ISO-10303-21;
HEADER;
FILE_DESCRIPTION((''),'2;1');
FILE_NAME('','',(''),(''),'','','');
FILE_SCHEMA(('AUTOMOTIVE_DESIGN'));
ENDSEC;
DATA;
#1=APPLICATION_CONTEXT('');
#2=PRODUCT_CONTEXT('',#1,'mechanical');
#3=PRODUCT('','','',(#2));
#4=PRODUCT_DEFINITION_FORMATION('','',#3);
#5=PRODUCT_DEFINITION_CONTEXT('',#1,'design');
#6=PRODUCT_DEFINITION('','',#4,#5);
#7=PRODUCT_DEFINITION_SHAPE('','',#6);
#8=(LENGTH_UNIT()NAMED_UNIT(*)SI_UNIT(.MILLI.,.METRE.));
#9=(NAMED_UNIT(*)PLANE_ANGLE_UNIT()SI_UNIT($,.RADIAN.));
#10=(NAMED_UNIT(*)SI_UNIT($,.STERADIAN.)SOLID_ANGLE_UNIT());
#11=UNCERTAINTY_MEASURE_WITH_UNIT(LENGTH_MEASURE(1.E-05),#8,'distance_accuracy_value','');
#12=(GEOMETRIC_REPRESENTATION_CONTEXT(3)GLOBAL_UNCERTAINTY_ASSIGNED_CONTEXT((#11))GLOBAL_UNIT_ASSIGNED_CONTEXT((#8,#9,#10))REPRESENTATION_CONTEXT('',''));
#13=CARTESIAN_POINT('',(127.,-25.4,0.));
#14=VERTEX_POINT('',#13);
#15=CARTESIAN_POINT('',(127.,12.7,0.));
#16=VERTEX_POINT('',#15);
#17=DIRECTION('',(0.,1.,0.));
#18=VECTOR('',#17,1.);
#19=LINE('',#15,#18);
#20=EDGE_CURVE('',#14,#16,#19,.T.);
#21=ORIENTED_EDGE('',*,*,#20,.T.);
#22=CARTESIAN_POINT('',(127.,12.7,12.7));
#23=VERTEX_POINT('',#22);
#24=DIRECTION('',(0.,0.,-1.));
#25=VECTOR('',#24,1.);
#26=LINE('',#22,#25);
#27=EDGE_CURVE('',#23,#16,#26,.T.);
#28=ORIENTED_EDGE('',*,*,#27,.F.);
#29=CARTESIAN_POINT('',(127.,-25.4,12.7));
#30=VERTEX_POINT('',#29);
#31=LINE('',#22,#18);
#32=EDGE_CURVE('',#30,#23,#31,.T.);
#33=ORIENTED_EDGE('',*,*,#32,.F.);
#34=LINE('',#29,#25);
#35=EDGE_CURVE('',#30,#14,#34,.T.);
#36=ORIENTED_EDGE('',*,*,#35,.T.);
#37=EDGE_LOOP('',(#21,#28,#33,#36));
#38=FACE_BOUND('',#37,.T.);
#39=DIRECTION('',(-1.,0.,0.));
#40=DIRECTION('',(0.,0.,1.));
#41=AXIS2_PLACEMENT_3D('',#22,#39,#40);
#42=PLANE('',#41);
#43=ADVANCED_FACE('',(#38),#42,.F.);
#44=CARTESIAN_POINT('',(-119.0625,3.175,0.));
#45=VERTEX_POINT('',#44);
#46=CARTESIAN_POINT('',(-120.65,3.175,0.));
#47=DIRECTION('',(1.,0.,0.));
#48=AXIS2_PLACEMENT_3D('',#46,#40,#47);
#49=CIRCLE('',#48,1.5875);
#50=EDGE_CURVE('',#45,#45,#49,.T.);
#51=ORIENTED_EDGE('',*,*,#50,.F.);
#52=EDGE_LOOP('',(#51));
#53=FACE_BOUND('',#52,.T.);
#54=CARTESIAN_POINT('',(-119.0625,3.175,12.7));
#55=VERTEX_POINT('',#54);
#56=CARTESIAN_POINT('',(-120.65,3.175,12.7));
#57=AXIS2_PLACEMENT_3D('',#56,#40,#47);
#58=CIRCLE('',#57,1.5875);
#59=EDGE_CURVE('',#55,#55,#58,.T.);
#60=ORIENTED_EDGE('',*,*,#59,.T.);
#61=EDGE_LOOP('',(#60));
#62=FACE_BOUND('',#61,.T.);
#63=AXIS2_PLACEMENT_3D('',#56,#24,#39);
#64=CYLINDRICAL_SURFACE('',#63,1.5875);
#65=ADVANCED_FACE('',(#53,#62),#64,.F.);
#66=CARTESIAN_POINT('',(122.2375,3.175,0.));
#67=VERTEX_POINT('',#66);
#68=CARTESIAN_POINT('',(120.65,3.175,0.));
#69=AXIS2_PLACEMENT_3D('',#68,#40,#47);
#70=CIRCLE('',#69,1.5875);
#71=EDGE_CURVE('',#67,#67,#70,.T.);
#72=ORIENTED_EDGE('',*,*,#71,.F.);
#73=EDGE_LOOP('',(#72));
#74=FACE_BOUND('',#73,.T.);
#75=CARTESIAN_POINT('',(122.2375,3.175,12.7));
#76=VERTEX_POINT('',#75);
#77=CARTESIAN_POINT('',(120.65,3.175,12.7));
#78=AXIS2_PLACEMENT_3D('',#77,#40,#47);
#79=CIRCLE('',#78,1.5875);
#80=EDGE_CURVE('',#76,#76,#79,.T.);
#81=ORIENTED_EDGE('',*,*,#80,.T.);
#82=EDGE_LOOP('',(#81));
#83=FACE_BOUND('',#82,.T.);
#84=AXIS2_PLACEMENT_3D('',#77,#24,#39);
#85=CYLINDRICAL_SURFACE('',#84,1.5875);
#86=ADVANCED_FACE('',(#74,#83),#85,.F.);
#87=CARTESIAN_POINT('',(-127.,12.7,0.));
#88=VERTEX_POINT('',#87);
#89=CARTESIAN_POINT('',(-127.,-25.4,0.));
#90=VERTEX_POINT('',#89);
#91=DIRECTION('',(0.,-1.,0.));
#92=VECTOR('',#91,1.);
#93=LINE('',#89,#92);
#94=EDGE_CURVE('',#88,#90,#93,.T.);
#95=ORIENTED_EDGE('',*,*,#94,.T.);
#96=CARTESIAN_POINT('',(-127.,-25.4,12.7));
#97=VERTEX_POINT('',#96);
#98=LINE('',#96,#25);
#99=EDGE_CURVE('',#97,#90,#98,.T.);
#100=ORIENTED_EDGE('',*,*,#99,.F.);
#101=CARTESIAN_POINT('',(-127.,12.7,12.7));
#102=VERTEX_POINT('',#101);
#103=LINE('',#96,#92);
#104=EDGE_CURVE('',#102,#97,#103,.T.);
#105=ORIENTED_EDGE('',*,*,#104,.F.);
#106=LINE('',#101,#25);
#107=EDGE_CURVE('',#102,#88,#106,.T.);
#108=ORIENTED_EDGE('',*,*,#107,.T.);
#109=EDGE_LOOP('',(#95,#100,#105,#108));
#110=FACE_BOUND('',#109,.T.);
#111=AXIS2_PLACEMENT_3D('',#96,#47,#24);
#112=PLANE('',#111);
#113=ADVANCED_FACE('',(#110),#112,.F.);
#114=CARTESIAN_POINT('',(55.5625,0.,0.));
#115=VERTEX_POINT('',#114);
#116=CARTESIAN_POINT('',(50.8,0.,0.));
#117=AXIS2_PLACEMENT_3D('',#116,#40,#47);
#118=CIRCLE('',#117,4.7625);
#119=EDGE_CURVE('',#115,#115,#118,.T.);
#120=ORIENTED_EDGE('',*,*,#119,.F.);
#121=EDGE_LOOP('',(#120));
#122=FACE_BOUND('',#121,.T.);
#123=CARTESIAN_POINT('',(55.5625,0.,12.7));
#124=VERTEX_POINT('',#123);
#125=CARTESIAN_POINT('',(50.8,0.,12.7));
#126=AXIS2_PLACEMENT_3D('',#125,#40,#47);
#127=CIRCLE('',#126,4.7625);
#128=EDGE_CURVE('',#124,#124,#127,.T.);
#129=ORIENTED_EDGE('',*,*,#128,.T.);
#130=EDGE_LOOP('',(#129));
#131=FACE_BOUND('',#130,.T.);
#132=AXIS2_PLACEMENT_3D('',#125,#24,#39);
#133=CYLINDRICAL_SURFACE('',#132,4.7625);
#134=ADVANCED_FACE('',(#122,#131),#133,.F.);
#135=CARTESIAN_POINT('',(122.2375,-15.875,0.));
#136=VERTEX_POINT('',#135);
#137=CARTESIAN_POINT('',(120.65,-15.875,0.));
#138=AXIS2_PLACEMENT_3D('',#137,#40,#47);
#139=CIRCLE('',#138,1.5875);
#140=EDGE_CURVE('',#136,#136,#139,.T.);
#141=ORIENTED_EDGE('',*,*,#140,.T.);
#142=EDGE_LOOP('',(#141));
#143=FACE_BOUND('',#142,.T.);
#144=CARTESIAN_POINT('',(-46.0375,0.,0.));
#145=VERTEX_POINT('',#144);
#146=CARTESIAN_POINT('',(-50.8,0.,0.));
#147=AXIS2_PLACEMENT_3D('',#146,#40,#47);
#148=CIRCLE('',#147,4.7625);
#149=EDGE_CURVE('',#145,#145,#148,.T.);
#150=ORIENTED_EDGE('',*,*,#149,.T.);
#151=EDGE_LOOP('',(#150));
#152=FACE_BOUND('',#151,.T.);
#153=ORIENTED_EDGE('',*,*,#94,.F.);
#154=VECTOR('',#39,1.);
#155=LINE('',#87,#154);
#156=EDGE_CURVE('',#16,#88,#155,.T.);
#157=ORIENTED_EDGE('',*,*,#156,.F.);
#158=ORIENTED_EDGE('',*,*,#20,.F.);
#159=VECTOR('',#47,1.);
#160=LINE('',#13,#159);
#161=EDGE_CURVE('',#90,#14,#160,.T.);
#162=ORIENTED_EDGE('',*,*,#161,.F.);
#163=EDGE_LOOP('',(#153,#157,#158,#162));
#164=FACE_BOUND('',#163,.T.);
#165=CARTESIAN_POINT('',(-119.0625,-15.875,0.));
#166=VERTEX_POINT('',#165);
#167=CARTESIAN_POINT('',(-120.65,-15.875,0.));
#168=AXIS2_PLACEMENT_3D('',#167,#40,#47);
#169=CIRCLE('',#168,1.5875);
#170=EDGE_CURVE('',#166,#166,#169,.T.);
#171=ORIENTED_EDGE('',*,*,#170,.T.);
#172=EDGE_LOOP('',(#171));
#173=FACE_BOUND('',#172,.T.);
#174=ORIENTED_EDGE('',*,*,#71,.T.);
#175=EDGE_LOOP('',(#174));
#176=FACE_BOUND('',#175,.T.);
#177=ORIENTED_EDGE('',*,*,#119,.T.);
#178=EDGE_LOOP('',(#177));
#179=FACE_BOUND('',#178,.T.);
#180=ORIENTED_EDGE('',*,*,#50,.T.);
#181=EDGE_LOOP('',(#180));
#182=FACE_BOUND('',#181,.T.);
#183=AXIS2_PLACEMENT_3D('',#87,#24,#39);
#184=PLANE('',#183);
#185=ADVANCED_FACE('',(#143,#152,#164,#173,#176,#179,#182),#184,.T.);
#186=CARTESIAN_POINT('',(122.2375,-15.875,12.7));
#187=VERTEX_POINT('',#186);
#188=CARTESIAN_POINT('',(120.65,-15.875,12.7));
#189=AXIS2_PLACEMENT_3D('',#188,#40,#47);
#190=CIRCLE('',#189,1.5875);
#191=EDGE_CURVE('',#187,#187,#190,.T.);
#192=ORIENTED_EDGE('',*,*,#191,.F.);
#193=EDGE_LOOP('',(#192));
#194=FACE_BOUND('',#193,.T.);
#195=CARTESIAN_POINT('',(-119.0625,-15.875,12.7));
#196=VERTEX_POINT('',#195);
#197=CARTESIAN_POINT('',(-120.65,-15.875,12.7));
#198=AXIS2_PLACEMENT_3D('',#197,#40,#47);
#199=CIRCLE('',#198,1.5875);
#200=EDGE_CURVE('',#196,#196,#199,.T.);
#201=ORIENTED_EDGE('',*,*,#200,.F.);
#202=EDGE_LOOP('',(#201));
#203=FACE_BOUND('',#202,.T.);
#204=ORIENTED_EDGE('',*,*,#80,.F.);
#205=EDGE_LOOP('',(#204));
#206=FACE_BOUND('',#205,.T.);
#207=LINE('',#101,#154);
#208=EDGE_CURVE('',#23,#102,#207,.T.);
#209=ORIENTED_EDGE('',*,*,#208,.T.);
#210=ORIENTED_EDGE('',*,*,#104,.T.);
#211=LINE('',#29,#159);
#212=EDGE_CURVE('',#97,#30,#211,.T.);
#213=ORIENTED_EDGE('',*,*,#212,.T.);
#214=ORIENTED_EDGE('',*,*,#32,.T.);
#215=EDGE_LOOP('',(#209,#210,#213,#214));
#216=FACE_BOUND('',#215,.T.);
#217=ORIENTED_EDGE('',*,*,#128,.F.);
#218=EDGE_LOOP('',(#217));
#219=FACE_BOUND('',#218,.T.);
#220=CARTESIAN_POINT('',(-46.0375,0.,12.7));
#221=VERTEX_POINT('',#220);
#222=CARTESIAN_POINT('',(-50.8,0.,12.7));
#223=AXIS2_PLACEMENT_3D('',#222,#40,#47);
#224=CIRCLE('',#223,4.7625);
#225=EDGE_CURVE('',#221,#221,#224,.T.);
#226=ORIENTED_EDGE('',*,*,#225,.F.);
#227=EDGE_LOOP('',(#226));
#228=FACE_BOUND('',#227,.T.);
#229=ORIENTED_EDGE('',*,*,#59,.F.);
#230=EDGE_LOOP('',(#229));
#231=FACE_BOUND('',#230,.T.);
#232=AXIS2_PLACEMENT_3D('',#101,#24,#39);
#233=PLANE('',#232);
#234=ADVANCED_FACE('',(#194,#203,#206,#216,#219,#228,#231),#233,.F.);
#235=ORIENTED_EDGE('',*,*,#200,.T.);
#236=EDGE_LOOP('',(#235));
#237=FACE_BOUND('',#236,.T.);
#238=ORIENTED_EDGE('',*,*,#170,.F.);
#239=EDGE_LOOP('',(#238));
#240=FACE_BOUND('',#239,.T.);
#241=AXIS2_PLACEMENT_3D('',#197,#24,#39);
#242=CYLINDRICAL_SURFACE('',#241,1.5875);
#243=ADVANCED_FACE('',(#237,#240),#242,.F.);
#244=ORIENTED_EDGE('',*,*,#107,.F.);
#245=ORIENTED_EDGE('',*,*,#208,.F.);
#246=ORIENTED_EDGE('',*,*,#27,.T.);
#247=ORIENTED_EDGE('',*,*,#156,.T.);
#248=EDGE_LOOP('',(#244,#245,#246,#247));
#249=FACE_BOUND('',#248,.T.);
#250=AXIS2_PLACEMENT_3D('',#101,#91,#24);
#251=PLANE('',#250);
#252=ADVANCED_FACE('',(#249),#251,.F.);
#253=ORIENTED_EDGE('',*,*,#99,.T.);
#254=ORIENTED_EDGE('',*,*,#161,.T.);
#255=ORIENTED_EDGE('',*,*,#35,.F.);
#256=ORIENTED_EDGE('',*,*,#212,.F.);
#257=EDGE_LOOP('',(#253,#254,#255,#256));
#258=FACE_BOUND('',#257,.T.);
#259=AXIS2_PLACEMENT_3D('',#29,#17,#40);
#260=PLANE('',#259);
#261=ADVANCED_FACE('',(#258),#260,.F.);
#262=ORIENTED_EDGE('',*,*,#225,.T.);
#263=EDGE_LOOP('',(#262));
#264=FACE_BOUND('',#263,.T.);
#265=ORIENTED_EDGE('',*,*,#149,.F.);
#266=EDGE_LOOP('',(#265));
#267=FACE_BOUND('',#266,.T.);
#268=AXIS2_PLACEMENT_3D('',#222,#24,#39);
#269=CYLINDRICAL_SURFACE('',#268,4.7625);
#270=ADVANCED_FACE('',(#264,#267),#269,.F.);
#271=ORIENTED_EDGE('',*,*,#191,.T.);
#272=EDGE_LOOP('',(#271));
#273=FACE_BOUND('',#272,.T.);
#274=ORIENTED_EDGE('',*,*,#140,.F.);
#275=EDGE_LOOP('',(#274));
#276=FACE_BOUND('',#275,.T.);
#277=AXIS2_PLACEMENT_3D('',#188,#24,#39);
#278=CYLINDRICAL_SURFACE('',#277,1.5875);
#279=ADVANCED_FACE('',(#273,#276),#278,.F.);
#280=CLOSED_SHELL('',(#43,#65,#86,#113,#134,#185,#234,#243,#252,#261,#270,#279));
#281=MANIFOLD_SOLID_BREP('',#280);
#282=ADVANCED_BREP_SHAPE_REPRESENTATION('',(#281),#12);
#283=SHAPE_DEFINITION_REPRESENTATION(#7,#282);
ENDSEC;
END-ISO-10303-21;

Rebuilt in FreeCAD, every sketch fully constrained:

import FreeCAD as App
import Part
import Sketcher
from FreeCAD import Vector
Q = App.Units.Quantity

doc = App.newDocument("Part")
body = doc.addObject("PartDesign::Body", "Body")

# Sketch on XY plane
sketch1 = doc.addObject("Sketcher::SketchObject", "Sketch")
body.addObject(sketch1)
sketch1.AttachmentSupport = (doc.XY_Plane, [""])
sketch1.MapMode = "FlatFace"
sketch1.addGeometry([
    Part.LineSegment(Vector(-127, 12.7, 0), Vector(-127, -25.4, 0)),  # 0
    Part.LineSegment(Vector(-127, -25.4, 0), Vector(127, -25.4, 0)),  # 1
    Part.LineSegment(Vector(127, -25.4, 0), Vector(127, 12.7, 0)),  # 2
    Part.LineSegment(Vector(127, 12.7, 0), Vector(-127, 12.7, 0)),  # 3
    Part.Circle(Vector(-120.7, -15.9, 0), Vector(0, 0, 1), 1.6),  # 4
    Part.Circle(Vector(120.7, -15.9, 0), Vector(0, 0, 1), 1.6),  # 5
    Part.Circle(Vector(-120.7, 3.2, 0), Vector(0, 0, 1), 1.6),  # 6
    Part.Circle(Vector(-50.8, 0, 0), Vector(0, 0, 1), 4.8),  # 7
    Part.Circle(Vector(50.8, 0, 0), Vector(0, 0, 1), 4.8),  # 8
    Part.Circle(Vector(120.7, 3.2, 0), Vector(0, 0, 1), 1.6),  # 9
], False)
sketch1.addConstraint([
    Sketcher.Constraint("Coincident", 0, 2, 1, 1),
    Sketcher.Constraint("Coincident", 1, 2, 2, 1),
    Sketcher.Constraint("Coincident", 2, 2, 3, 1),
    Sketcher.Constraint("Coincident", 3, 2, 0, 1),
    Sketcher.Constraint("Vertical", 0),
    Sketcher.Constraint("Horizontal", 1),
    Sketcher.Constraint("Vertical", 2),
    Sketcher.Constraint("Horizontal", 3),
    Sketcher.Constraint("Equal", 4, 5),
    Sketcher.Constraint("Equal", 5, 6),
    Sketcher.Constraint("Equal", 7, 8),
    Sketcher.Constraint("Equal", 6, 9),
    Sketcher.Constraint("Symmetric", 7, 3, 8, 3, -1, 1),
    Sketcher.Constraint("Symmetric", 4, 3, 5, 3, -2),
    Sketcher.Constraint("Symmetric", 6, 3, 9, 3, -2),
    Sketcher.Constraint("PointOnObject", 7, 3, -1),
    Sketcher.Constraint("Vertical", 4, 3, 6, 3),
    Sketcher.Constraint("DistanceX", 1, 1, 1, 2, Q("10 in")),
    Sketcher.Constraint("Diameter", 4, Q("0.125 in")),
    Sketcher.Constraint("Diameter", 7, Q("0.375 in")),
    Sketcher.Constraint("DistanceY", 0, 2, 0, 1, Q("1.5 in")),
    Sketcher.Constraint("DistanceX", 7, 3, -1, 1, Q("2 in")),
    Sketcher.Constraint("DistanceX", 0, 2, -1, 1, Q("5 in")),
    Sketcher.Constraint("DistanceY", 0, 2, -1, 1, Q("1 in")),
    Sketcher.Constraint("DistanceX", 4, 3, 5, 3, Q("9.5 in")),
    Sketcher.Constraint("DistanceY", 4, 3, 6, 3, Q("0.75 in")),
    Sketcher.Constraint("DistanceY", 4, 3, -1, 1, Q("0.625 in")),
])
pad1 = doc.addObject("PartDesign::Pad", "Pad")
body.addObject(pad1)
pad1.Profile = sketch1
pad1.Length = Q("0.5 in")

doc.recompute()
